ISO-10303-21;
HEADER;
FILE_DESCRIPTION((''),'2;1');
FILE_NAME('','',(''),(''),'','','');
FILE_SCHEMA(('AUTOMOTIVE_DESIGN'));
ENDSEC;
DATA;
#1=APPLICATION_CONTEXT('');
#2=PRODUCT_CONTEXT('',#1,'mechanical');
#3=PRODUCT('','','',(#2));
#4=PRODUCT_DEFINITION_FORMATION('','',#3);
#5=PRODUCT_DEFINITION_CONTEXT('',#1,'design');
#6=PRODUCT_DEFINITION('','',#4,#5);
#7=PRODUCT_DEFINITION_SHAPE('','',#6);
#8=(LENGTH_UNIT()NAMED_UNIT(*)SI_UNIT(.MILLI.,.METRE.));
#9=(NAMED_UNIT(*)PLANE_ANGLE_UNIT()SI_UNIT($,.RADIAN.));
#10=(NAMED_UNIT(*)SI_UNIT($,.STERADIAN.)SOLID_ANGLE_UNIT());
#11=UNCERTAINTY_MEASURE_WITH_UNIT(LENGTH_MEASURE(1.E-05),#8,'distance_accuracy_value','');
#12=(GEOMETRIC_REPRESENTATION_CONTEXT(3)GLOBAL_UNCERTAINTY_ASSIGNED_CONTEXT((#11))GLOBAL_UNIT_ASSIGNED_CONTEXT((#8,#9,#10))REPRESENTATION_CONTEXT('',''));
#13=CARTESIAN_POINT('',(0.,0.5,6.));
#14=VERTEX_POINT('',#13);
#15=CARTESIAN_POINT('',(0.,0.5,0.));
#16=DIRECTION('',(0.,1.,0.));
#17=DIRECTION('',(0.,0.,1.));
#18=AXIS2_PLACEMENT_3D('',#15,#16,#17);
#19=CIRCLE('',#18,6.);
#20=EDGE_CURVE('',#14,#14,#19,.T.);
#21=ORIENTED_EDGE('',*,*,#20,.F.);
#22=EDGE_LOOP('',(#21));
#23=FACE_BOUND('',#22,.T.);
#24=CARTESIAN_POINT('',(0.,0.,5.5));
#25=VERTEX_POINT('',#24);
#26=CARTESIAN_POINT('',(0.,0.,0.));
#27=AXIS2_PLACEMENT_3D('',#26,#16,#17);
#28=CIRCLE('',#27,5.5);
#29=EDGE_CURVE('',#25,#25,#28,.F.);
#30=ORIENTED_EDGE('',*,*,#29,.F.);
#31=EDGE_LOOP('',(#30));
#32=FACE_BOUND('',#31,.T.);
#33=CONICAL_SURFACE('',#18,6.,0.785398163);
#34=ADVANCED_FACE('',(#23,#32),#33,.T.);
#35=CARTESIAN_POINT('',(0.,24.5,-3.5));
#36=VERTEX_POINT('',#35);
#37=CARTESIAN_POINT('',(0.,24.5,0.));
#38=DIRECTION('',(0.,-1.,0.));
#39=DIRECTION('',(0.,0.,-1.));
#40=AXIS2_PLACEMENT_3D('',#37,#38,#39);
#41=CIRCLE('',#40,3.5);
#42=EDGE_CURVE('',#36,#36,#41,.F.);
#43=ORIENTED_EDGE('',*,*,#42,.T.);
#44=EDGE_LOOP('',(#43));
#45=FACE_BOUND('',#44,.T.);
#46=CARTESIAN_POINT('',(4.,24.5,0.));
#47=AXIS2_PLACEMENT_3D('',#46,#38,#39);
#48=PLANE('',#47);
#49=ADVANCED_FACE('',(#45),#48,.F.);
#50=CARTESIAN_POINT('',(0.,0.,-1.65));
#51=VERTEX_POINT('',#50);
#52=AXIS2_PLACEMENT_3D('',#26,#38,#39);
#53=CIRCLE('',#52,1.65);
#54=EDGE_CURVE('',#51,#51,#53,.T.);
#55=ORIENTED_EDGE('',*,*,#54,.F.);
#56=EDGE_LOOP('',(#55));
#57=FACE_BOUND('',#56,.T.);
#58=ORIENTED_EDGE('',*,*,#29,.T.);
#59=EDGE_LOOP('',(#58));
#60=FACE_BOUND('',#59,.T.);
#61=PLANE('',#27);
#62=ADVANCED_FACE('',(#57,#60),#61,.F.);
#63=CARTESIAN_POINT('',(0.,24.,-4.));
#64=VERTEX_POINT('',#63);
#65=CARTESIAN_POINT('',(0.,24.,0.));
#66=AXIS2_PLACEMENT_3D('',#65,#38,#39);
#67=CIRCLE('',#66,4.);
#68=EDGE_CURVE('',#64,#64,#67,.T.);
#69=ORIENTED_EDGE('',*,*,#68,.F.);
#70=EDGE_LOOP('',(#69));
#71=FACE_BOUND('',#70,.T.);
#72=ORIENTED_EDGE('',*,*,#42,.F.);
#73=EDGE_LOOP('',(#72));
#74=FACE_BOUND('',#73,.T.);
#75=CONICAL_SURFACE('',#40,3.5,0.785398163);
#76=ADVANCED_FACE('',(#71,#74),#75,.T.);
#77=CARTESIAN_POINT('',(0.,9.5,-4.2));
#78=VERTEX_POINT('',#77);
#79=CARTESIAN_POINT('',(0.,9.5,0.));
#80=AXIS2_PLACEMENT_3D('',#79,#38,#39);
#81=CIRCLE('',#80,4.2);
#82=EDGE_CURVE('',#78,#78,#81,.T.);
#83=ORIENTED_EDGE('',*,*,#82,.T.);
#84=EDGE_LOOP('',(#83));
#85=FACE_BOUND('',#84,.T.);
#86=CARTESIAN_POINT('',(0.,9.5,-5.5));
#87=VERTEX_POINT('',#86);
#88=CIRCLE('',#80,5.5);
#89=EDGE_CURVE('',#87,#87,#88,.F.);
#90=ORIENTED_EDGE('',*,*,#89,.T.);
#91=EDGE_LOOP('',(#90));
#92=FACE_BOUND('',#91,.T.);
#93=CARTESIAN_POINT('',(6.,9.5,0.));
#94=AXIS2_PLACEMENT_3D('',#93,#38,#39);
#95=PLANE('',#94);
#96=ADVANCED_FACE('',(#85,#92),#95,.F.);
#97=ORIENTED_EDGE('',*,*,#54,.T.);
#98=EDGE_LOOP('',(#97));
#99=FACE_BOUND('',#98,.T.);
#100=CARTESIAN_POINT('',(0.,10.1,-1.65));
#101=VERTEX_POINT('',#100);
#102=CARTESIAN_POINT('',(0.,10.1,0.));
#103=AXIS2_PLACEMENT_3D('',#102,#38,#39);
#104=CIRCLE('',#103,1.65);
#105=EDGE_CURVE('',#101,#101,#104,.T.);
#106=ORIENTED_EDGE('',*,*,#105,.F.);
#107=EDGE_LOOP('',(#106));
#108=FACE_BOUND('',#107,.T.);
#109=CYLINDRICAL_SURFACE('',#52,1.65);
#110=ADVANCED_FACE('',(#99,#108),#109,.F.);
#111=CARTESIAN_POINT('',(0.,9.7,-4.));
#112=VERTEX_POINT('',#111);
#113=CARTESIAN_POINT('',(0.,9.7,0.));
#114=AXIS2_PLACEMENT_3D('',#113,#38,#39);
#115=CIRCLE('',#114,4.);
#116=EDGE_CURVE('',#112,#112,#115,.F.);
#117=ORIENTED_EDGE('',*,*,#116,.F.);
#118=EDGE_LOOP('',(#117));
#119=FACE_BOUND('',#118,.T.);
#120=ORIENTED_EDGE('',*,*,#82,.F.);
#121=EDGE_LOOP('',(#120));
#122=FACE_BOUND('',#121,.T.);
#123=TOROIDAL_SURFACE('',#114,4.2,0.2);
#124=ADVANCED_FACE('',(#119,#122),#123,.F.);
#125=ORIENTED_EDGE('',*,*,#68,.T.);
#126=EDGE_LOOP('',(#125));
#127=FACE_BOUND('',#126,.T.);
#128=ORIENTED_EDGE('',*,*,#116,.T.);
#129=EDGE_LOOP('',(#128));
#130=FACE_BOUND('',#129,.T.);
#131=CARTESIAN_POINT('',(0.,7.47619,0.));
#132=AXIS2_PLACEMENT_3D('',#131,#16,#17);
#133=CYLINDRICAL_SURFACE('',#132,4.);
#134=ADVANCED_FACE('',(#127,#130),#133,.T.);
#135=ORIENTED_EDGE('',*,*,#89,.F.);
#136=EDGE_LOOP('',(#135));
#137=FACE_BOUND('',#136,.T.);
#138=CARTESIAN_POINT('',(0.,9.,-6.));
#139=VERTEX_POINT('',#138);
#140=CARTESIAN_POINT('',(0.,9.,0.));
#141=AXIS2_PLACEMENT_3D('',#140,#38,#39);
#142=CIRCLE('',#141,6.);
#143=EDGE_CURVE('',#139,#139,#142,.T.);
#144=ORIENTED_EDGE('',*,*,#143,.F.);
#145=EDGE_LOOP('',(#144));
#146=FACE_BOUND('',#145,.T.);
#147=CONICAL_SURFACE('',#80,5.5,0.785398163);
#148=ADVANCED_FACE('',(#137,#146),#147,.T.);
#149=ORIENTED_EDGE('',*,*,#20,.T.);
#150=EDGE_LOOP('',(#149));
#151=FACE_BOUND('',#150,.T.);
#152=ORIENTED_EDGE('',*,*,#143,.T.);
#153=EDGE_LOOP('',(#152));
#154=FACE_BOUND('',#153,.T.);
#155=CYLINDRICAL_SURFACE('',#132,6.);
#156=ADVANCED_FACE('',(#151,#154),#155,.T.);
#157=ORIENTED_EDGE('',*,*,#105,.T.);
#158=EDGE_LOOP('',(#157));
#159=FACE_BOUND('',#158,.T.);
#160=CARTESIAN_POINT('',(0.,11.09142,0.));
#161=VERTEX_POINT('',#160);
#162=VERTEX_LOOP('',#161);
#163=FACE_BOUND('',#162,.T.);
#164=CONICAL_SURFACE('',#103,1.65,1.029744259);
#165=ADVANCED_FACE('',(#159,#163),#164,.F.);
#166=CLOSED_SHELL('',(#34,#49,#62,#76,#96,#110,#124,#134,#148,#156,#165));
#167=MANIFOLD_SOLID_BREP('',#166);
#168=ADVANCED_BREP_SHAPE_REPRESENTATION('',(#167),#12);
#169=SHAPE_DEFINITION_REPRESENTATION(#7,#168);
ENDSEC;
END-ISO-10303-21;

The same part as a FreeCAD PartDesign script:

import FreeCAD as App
import Part
import Sketcher
from FreeCAD import Vector


def edges_at(feature, points):
    """Names of the edges that pass closest to the given points."""
    edges = feature.Shape.Edges
    near = lambda p: min(range(len(edges)), key=lambda i: edges[i].distToShape(Part.Vertex(*p))[0])
    return sorted({f"Edge{near(p) + 1}" for p in points})


def add_polygon(sketch, points):
    """Adds a closed chain of lines whose ends are joined by coincident constraints."""
    first, n = sketch.GeometryCount, len(points)
    for a, b in zip(points, points[1:] + points[:1]):
        sketch.addGeometry(Part.LineSegment(App.Vector(*a, 0), App.Vector(*b, 0)), False)
    for i in range(n):
        sketch.addConstraint(Sketcher.Constraint("Coincident", first + i, 2, first + (i + 1) % n, 1))

doc = App.newDocument("Part")
body = doc.addObject("PartDesign::Body", "Body")

sketch1 = body.newObject("Sketcher::SketchObject", "Sketch")
sketch1.AttachmentSupport = (doc.getObject("XY_Plane"), [""])
sketch1.MapMode = "FlatFace"
add_polygon(sketch1, [(0, 0), (6, 0), (6, 9.5), (4, 9.5), (4, 24.5), (0, 24.5)])
sketch1.addConstraint([
    Sketcher.Constraint("Horizontal", 0),
    Sketcher.Constraint("Vertical", 1),
    Sketcher.Constraint("Horizontal", 2),
    Sketcher.Constraint("Vertical", 3),
    Sketcher.Constraint("Horizontal", 4),
    Sketcher.Constraint("Vertical", 5),
    Sketcher.Constraint("Coincident", 5, 2, -1, 1),
    Sketcher.Constraint("DistanceX", 0, 1, 0, 2, 6.0),
    Sketcher.Constraint("DistanceX", 2, 2, 2, 1, 2.0),
    Sketcher.Constraint("DistanceY", 3, 1, 3, 2, 15.0),
    Sketcher.Constraint("DistanceY", 1, 1, 1, 2, 9.5),
])
revolution = body.newObject("PartDesign::Revolution", "Revolution")
revolution.Profile = sketch1
revolution.ReferenceAxis = (sketch1, ["V_Axis"])
revolution.Angle = 360

sketch2 = body.newObject("Sketcher::SketchObject", "Sketch001")
sketch2.AttachmentSupport = (doc.getObject("XZ_Plane"), [""])
sketch2.MapMode = "FlatFace"
sketch2.addGeometry(Part.Circle(Vector(0, 0, 0), Vector(0, 0, 1), 1.65), False)
sketch2.addConstraint([
    Sketcher.Constraint("Coincident", 0, 3, -1, 1),
    Sketcher.Constraint("Diameter", 0, 3.3),
])
doc.recompute()
hole = body.newObject("PartDesign::Hole", "Hole")
hole.Profile = sketch2
hole.ThreadType = "None"
hole.Diameter = 3.3
hole.DepthType = "Dimension"
hole.Depth = 10.1
hole.DrillPoint = "Angled"
hole.DrillPointAngle = 118
doc.recompute()

fillet = body.newObject("PartDesign::Fillet", "Fillet")
fillet.Base = (hole, edges_at(hole, [(0, 9.5, -4)]))
fillet.Radius = 0.2
doc.recompute()

chamfer = body.newObject("PartDesign::Chamfer", "Chamfer")
chamfer.Base = (fillet, edges_at(fillet, [(0, 24.5, -4), (0, 9.5, -6), (0, 0, -6)]))
chamfer.Size = 0.5

doc.recompute()
